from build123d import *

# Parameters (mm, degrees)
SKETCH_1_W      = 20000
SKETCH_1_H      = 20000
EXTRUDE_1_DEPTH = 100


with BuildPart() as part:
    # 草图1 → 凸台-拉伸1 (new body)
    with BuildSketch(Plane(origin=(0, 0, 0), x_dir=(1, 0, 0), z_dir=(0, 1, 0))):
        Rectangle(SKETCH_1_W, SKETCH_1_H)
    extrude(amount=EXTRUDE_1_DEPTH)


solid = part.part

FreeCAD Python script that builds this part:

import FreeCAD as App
import Part
import Sketcher
Q = App.Units.Quantity


def add_polygon(sketch, points):
    """Adds a closed chain of lines whose ends are joined by coincident constraints."""
    first, n = sketch.GeometryCount, len(points)
    for a, b in zip(points, points[1:] + points[:1]):
        sketch.addGeometry(Part.LineSegment(App.Vector(*a, 0), App.Vector(*b, 0)), False)
    for i in range(n):
        sketch.addConstraint(Sketcher.Constraint("Coincident", first + i, 2, first + (i + 1) % n, 1))

doc = App.newDocument("Part")
body = doc.addObject("PartDesign::Body", "Body")

sketch1 = doc.addObject("Sketcher::SketchObject", "Sketch")
body.addObject(sketch1)
sketch1.AttachmentSupport = (doc.XZ_Plane, [""])
sketch1.MapMode = "FlatFace"
add_polygon(sketch1, [(-10000, -10000), (-10000, 10000), (10000, 10000), (10000, -10000)])
sketch1.addConstraint([
    Sketcher.Constraint("Vertical", 0),
    Sketcher.Constraint("Horizontal", 1),
    Sketcher.Constraint("Vertical", 2),
    Sketcher.Constraint("Horizontal", 3),
    Sketcher.Constraint("Symmetric", 0, 2, 2, 2, -1, 1),
    Sketcher.Constraint("Equal", 3, 0),
    Sketcher.Constraint("DistanceX", 1, 1, 1, 2, Q("20000 mm")),
])
pad1 = doc.addObject("PartDesign::Pad", "Pad")
body.addObject(pad1)
pad1.Profile = sketch1
pad1.Length = 100
pad1.Reversed = True

doc.recompute()
